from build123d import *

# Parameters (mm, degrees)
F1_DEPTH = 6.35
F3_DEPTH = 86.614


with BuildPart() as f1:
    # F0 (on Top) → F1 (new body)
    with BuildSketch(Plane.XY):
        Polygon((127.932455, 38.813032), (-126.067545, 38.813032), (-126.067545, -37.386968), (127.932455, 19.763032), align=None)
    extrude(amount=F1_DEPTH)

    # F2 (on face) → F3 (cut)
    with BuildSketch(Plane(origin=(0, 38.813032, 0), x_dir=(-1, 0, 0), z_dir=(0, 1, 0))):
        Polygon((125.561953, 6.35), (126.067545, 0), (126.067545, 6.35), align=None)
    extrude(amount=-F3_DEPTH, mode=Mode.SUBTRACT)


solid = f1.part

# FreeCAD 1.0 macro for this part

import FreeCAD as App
import Part
import Sketcher
Q = App.Units.Quantity


def add_polygon(sketch, points):
    """Adds a closed chain of lines whose ends are joined by coincident constraints."""
    first, n = sketch.GeometryCount, len(points)
    for a, b in zip(points, points[1:] + points[:1]):
        sketch.addGeometry(Part.LineSegment(App.Vector(*a, 0), App.Vector(*b, 0)), False)
    for i in range(n):
        sketch.addConstraint(Sketcher.Constraint("Coincident", first + i, 2, first + (i + 1) % n, 1))

doc = App.newDocument("Part")
body = doc.addObject("PartDesign::Body", "Body")

# Sketch on XY plane
sketch1 = doc.addObject("Sketcher::SketchObject", "Sketch")
body.addObject(sketch1)
sketch1.AttachmentSupport = (doc.XY_Plane, [""])
sketch1.MapMode = "FlatFace"
add_polygon(sketch1, [(128, 39), (-126, 39), (-126, -37), (128, 20)])  # lines 0-3
sketch1.addConstraint(Sketcher.Constraint("Horizontal", 0))
sketch1.addConstraint(Sketcher.Constraint("Vertical", 1))
sketch1.addConstraint(Sketcher.Constraint("Vertical", 3))
sketch1.addConstraint(Sketcher.Constraint("DistanceX", 0, 2, 0, 1, Q("10 in")))
sketch1.addConstraint(Sketcher.Constraint("DistanceY", 1, 2, 1, 1, Q("3 in")))
sketch1.addConstraint(Sketcher.Constraint("DistanceY", 3, 1, 3, 2, Q("0.75 in")))
sketch1.addConstraint(Sketcher.Constraint("DistanceY", 1, 2, -1, 1, Q("37.386968 mm")))
sketch1.addConstraint(Sketcher.Constraint("DistanceX", 0, 2, -1, 1, Q("126.067545 mm")))
pad1 = doc.addObject("PartDesign::Pad", "Pad")
body.addObject(pad1)
pad1.Profile = sketch1
pad1.Length = Q("0.25 in")

# Sketch on XZ plane
sketch2 = doc.addObject("Sketcher::SketchObject", "Sketch001")
body.addObject(sketch2)
sketch2.AttachmentSupport = (doc.XZ_Plane, [""])
sketch2.MapMode = "FlatFace"
sketch2.AttachmentOffset = App.Placement(App.Vector(0, 0, -38.813032), App.Rotation())
add_polygon(sketch2, [(-125.6, 6.3), (-126.1, 0), (-126.1, 6.3)])  # lines 0-2
sketch2.addConstraint(Sketcher.Constraint("Vertical", 1))
sketch2.addConstraint(Sketcher.Constraint("Horizontal", 2))
sketch2.addConstraint(Sketcher.Constraint("PointOnObject", 0, 2, -1))
sketch2.addConstraint(Sketcher.Constraint("DistanceY", 1, 1, 1, 2, Q("0.25 in")))
sketch2.addConstraint(Sketcher.Constraint("DistanceX", 2, 1, 2, 2, Q("0.505592 mm")))
sketch2.addConstraint(Sketcher.Constraint("DistanceX", 0, 2, -1, 1, Q("126.067545 mm")))
pocket1 = doc.addObject("PartDesign::Pocket", "Pocket")
body.addObject(pocket1)
pocket1.Profile = sketch2
pocket1.Length = Q("3.41 in")
pocket1.Reversed = True

doc.recompute()
